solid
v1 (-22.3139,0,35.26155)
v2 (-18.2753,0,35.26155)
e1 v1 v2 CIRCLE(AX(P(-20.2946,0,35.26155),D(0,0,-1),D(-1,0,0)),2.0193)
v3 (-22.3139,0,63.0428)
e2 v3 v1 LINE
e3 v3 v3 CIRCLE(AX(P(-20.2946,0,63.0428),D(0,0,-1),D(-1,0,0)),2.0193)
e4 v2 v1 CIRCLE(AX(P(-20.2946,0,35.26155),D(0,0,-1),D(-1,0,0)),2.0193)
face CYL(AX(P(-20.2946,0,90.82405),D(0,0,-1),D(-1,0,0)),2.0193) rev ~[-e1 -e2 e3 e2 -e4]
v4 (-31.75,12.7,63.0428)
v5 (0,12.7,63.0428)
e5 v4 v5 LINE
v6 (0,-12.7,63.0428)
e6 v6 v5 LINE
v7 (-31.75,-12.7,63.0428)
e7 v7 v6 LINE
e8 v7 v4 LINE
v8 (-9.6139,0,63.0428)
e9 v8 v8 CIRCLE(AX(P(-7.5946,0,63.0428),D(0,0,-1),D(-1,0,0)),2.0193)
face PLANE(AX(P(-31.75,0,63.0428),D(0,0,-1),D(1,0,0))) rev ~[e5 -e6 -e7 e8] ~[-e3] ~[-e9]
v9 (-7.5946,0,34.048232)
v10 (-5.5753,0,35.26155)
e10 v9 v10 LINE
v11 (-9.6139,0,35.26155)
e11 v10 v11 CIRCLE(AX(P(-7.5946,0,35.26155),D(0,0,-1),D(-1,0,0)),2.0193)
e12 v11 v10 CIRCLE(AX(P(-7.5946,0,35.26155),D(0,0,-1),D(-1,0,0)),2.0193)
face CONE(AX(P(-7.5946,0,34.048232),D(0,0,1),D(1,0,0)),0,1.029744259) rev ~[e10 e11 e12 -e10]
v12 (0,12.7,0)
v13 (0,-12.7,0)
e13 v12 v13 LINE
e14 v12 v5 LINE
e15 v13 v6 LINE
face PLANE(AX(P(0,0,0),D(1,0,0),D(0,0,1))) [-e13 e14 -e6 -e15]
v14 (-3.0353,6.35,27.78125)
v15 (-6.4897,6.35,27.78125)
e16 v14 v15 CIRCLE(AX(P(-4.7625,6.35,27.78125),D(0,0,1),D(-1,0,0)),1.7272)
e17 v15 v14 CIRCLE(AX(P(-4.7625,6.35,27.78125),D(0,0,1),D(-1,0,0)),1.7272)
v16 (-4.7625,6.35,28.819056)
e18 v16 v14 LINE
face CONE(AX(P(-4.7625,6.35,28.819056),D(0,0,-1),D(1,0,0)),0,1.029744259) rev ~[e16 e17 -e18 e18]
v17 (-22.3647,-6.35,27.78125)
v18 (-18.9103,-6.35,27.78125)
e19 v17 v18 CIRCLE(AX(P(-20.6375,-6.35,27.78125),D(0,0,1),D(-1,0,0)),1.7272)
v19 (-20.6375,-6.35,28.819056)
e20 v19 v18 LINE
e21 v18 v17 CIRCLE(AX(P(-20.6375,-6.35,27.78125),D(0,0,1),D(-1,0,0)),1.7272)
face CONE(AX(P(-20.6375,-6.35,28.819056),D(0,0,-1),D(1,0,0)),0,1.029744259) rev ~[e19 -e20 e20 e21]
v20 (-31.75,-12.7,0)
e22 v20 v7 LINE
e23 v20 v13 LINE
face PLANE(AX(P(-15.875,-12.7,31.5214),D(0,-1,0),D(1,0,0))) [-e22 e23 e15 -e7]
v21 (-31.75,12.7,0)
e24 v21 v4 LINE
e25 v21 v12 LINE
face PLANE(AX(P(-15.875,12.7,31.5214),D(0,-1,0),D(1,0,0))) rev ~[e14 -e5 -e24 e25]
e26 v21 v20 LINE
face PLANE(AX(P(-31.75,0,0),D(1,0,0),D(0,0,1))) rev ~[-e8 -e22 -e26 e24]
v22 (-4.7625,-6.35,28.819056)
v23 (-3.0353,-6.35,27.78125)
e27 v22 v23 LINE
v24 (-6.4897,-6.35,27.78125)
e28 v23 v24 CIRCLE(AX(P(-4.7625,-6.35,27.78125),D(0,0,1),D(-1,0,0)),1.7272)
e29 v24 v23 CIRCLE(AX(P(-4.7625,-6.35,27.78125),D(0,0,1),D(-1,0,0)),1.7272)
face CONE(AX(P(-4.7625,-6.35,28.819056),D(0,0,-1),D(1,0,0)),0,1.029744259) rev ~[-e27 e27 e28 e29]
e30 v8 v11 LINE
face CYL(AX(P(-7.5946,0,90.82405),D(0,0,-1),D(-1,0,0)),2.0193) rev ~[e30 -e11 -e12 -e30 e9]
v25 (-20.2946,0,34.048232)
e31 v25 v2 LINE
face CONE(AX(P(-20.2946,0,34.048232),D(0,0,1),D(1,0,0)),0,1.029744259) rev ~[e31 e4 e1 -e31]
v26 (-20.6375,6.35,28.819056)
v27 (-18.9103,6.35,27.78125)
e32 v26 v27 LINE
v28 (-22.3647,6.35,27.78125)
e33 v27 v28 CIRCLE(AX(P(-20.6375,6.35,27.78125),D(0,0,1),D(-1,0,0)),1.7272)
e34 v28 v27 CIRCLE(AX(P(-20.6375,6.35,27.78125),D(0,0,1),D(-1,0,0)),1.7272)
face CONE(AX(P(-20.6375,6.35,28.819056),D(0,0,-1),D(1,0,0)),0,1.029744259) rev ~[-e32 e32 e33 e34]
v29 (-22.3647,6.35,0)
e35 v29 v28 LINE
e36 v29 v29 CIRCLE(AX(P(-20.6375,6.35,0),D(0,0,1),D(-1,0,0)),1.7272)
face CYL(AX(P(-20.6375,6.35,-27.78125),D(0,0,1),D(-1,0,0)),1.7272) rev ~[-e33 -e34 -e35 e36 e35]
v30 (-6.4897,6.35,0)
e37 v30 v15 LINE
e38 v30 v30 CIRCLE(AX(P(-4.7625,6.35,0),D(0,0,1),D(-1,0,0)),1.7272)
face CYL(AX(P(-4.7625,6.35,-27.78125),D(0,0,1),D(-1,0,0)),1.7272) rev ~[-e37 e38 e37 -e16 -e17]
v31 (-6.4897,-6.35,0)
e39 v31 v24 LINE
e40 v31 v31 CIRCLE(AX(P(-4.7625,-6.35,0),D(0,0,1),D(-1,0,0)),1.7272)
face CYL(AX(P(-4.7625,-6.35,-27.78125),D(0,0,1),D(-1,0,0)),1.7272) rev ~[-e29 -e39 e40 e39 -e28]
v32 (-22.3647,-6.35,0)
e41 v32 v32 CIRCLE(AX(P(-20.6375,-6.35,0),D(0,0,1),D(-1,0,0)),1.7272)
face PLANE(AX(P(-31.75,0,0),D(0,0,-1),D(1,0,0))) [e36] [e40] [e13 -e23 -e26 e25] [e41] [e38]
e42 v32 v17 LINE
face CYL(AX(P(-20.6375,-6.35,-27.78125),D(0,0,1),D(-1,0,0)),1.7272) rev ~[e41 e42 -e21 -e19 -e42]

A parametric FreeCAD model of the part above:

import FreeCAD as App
import Part
import Sketcher
Q = App.Units.Quantity


def add_polygon(sketch, points):
    """Adds a closed chain of lines whose ends are joined by coincident constraints."""
    first, n = sketch.GeometryCount, len(points)
    for a, b in zip(points, points[1:] + points[:1]):
        sketch.addGeometry(Part.LineSegment(App.Vector(*a, 0), App.Vector(*b, 0)), False)
    for i in range(n):
        sketch.addConstraint(Sketcher.Constraint("Coincident", first + i, 2, first + (i + 1) % n, 1))

doc = App.newDocument("Part")
body = doc.addObject("PartDesign::Body", "Body")

sketch1 = body.newObject("Sketcher::SketchObject", "Sketch")
sketch1.AttachmentSupport = (doc.getObject("XZ_Plane"), [""])
sketch1.MapMode = "FlatFace"
add_polygon(sketch1, [(-32, 63), (-32, 0), (0, 0), (0, 63)])
sketch1.addConstraint(Sketcher.Constraint("Vertical", 0))
sketch1.addConstraint(Sketcher.Constraint("Horizontal", 1))
sketch1.addConstraint(Sketcher.Constraint("Vertical", 2))
sketch1.addConstraint(Sketcher.Constraint("Horizontal", 3))
sketch1.addConstraint(Sketcher.Constraint("Coincident", 1, 2, -1, 1))
sketch1.addConstraint(Sketcher.Constraint("DistanceX", 1, 1, 1, 2, Q("1.25 in")))
sketch1.addConstraint(Sketcher.Constraint("DistanceY", 0, 2, 0, 1, Q("2.482 in")))
pad1 = body.newObject("PartDesign::Pad", "Pad")
pad1.Profile = sketch1
pad1.Length = Q("1 in")
pad1.Midplane = True

sketch2 = body.newObject("Sketcher::SketchObject", "Sketch001")
sketch2.AttachmentSupport = (doc.getObject("XY_Plane"), [""])
sketch2.MapMode = "FlatFace"
sketch2.addGeometry(Part.Circle(App.Vector(-20.6, -6.3, 0), App.Vector(0, 0, 1), 1.7), False)
sketch2.addGeometry(Part.Circle(App.Vector(-4.8, -6.3, 0), App.Vector(0, 0, 1), 1.7), False)
sketch2.addGeometry(Part.Circle(App.Vector(-4.8, 6.3, 0), App.Vector(0, 0, 1), 1.7), False)
sketch2.addGeometry(Part.Circle(App.Vector(-20.6, 6.3, 0), App.Vector(0, 0, 1), 1.7), False)
sketch2.addConstraint(Sketcher.Constraint("Equal", 0, 1))
sketch2.addConstraint(Sketcher.Constraint("Equal", 1, 2))
sketch2.addConstraint(Sketcher.Constraint("Equal", 2, 3))
sketch2.addConstraint(Sketcher.Constraint("Symmetric", 1, 3, 2, 3, -1))
sketch2.addConstraint(Sketcher.Constraint("Symmetric", 0, 3, 3, 3, -1))
sketch2.addConstraint(Sketcher.Constraint("Horizontal", 0, 3, 1, 3))
sketch2.addConstraint(Sketcher.Constraint("Diameter", 0, Q("0.136 in")))
sketch2.addConstraint(Sketcher.Constraint("DistanceY", 1, 3, 2, 3, Q("0.5 in")))
sketch2.addConstraint(Sketcher.Constraint("DistanceX", 0, 3, -1, 1, Q("0.8125 in")))
sketch2.addConstraint(Sketcher.Constraint("DistanceX", 1, 3, -1, 1, Q("0.1875 in")))
doc.recompute()
hole = body.newObject("PartDesign::Hole", "Hole")
hole.Profile = sketch2
hole.ThreadType = "None"
hole.Diameter = Q("0.136 in")
hole.DepthType = "Dimension"
hole.Depth = Q("1.09375 in")
hole.DrillPoint = "Angled"
hole.DrillPointAngle = 118
hole.Reversed = True

sketch3 = body.newObject("Sketcher::SketchObject", "Sketch002")
sketch3.AttachmentSupport = (doc.getObject("XY_Plane"), [""])
sketch3.MapMode = "FlatFace"
sketch3.AttachmentOffset = App.Placement(App.Vector(0, 0, 2.482 * 25.4), App.Rotation())
sketch3.addGeometry(Part.Circle(App.Vector(-7.6, 0, 0), App.Vector(0, 0, 1), 2), False)
sketch3.addGeometry(Part.Circle(App.Vector(-20.3, 0, 0), App.Vector(0, 0, 1), 2), False)
sketch3.addConstraint(Sketcher.Constraint("Equal", 0, 1))
sketch3.addConstraint(Sketcher.Constraint("PointOnObject", 0, 3, -1))
sketch3.addConstraint(Sketcher.Constraint("PointOnObject", 1, 3, -1))
sketch3.addConstraint(Sketcher.Constraint("Diameter", 0, Q("0.159 in")))
sketch3.addConstraint(Sketcher.Constraint("DistanceX", 1, 3, 0, 3, Q("0.5 in")))
sketch3.addConstraint(Sketcher.Constraint("DistanceX", 0, 3, -1, 1, Q("0.299 in")))
doc.recompute()
hole2 = body.newObject("PartDesign::Hole", "Hole001")
hole2.Profile = sketch3
hole2.ThreadType = "None"
hole2.Diameter = Q("0.159 in")
hole2.DepthType = "Dimension"
hole2.Depth = Q("1.09375 in")
hole2.DrillPoint = "Angled"
hole2.DrillPointAngle = 118

doc.recompute()
